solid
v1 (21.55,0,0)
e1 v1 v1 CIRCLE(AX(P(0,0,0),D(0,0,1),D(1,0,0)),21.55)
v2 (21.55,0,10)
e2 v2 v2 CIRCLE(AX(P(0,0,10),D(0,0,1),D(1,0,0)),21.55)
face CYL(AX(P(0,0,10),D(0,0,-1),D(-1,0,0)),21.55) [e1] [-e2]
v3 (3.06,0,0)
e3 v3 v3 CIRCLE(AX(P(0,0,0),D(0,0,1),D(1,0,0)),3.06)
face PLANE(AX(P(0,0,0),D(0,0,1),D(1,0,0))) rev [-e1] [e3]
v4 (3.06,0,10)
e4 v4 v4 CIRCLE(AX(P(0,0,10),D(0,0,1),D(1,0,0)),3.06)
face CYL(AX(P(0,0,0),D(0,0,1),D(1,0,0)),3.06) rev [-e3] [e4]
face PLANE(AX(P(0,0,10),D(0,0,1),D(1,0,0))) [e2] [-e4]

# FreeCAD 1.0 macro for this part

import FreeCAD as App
import Part
import Sketcher
Q = App.Units.Quantity

doc = App.newDocument("Part")
params = doc.addObject("Spreadsheet::Sheet", "Params")
for row, (alias, value) in enumerate([
    ("sketch1_diameter", "43.1 mm"),
    ("pad1_length", "10 mm"),
    ("sketch2_diameter", "6.12 mm"),
], start=1):
    params.set(f"A{row}", alias)
    params.set(f"B{row}", "=" + value)
    params.setAlias(f"B{row}", alias)

body = doc.addObject("PartDesign::Body", "Body")

sketch1 = body.newObject("Sketcher::SketchObject", "Sketch")
sketch1.AttachmentSupport = (doc.getObject("XY_Plane"), [""])
sketch1.MapMode = "FlatFace"
sketch1.addGeometry(Part.Circle(App.Vector(0, 0, 0), App.Vector(0, 0, 1), 21.55), False)
sketch1.addConstraint([
    Sketcher.Constraint("Coincident", 0, 3, -1, 1),
    Sketcher.Constraint("Diameter", 0, Q("43.1 mm")),
])
sketch1.setExpression("Constraints[1]", "Params.sketch1_diameter")
pad1 = body.newObject("PartDesign::Pad", "Pad")
pad1.Profile = sketch1
pad1.setExpression("Length", "Params.pad1_length")

sketch2 = body.newObject("Sketcher::SketchObject", "Sketch001")
sketch2.AttachmentSupport = (doc.getObject("XY_Plane"), [""])
sketch2.MapMode = "FlatFace"
sketch2.AttachmentOffset = App.Placement(App.Vector(0, 0, 10), App.Rotation())
sketch2.addGeometry(Part.Circle(App.Vector(0, 0, 0), App.Vector(0, 0, 1), 3.06), False)
sketch2.addConstraint([
    Sketcher.Constraint("Coincident", 0, 3, -1, 1),
    Sketcher.Constraint("Diameter", 0, Q("6.12 mm")),
])
sketch2.setExpression("Constraints[1]", "Params.sketch2_diameter")
pocket1 = body.newObject("PartDesign::Pocket", "Pocket")
pocket1.Profile = sketch2
pocket1.Type = "ThroughAll"

doc.recompute()
